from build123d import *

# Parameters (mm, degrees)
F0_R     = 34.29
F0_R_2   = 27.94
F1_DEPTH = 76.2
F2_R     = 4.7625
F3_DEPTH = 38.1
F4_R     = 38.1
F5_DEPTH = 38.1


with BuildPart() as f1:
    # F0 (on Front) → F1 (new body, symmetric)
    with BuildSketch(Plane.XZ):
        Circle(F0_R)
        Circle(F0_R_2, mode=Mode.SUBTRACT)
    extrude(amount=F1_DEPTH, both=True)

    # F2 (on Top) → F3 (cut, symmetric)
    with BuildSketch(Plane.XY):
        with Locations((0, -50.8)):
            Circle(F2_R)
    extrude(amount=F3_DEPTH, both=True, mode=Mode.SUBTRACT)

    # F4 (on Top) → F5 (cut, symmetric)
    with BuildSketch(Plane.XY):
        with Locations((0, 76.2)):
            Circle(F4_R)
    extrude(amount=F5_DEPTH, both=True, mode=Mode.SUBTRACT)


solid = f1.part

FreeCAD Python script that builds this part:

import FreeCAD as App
import Part
import Sketcher
Q = App.Units.Quantity

doc = App.newDocument("Part")
body = doc.addObject("PartDesign::Body", "Body")

sketch1 = body.newObject("Sketcher::SketchObject", "Sketch")
sketch1.AttachmentSupport = (doc.getObject("XZ_Plane"), [""])
sketch1.MapMode = "FlatFace"
sketch1.addGeometry([
    Part.Circle(App.Vector(0, 0, 0), App.Vector(0, 0, 1), 34.29),
    Part.Circle(App.Vector(0, 0, 0), App.Vector(0, 0, 1), 27.94),
], False)
sketch1.addConstraint([
    Sketcher.Constraint("Coincident", 0, 3, -1, 1),
    Sketcher.Constraint("Coincident", 1, 3, -1, 1),
    Sketcher.Constraint("Diameter", 0, Q("2.7 in")),
    Sketcher.Constraint("Diameter", 1, Q("2.2 in")),
])
pad1 = body.newObject("PartDesign::Pad", "Pad")
pad1.Profile = sketch1
pad1.Length = Q("6 in")
pad1.Midplane = True

sketch2 = body.newObject("Sketcher::SketchObject", "Sketch001")
sketch2.AttachmentSupport = (doc.getObject("XY_Plane"), [""])
sketch2.MapMode = "FlatFace"
sketch2.addGeometry(Part.Circle(App.Vector(0, -50.8, 0), App.Vector(0, 0, 1), 4.7625), False)
sketch2.addConstraint([
    Sketcher.Constraint("PointOnObject", 0, 3, -2),
    Sketcher.Constraint("Diameter", 0, Q("0.375 in")),
    Sketcher.Constraint("DistanceY", 0, 3, -1, 1, Q("2 in")),
])
pocket1 = body.newObject("PartDesign::Pocket", "Pocket")
pocket1.Profile = sketch2
pocket1.Length = Q("3 in")
pocket1.Midplane = True

sketch3 = body.newObject("Sketcher::SketchObject", "Sketch002")
sketch3.AttachmentSupport = (doc.getObject("XY_Plane"), [""])
sketch3.MapMode = "FlatFace"
sketch3.addGeometry(Part.Circle(App.Vector(0, 76.2, 0), App.Vector(0, 0, 1), 38.1), False)
sketch3.addConstraint([
    Sketcher.Constraint("PointOnObject", 0, 3, -2),
    Sketcher.Constraint("Diameter", 0, Q("3 in")),
    Sketcher.Constraint("DistanceY", -1, 1, 0, 3, Q("3 in")),
])
pocket2 = body.newObject("PartDesign::Pocket", "Pocket001")
pocket2.Profile = sketch3
pocket2.Length = Q("3 in")
pocket2.Midplane = True

doc.recompute()
